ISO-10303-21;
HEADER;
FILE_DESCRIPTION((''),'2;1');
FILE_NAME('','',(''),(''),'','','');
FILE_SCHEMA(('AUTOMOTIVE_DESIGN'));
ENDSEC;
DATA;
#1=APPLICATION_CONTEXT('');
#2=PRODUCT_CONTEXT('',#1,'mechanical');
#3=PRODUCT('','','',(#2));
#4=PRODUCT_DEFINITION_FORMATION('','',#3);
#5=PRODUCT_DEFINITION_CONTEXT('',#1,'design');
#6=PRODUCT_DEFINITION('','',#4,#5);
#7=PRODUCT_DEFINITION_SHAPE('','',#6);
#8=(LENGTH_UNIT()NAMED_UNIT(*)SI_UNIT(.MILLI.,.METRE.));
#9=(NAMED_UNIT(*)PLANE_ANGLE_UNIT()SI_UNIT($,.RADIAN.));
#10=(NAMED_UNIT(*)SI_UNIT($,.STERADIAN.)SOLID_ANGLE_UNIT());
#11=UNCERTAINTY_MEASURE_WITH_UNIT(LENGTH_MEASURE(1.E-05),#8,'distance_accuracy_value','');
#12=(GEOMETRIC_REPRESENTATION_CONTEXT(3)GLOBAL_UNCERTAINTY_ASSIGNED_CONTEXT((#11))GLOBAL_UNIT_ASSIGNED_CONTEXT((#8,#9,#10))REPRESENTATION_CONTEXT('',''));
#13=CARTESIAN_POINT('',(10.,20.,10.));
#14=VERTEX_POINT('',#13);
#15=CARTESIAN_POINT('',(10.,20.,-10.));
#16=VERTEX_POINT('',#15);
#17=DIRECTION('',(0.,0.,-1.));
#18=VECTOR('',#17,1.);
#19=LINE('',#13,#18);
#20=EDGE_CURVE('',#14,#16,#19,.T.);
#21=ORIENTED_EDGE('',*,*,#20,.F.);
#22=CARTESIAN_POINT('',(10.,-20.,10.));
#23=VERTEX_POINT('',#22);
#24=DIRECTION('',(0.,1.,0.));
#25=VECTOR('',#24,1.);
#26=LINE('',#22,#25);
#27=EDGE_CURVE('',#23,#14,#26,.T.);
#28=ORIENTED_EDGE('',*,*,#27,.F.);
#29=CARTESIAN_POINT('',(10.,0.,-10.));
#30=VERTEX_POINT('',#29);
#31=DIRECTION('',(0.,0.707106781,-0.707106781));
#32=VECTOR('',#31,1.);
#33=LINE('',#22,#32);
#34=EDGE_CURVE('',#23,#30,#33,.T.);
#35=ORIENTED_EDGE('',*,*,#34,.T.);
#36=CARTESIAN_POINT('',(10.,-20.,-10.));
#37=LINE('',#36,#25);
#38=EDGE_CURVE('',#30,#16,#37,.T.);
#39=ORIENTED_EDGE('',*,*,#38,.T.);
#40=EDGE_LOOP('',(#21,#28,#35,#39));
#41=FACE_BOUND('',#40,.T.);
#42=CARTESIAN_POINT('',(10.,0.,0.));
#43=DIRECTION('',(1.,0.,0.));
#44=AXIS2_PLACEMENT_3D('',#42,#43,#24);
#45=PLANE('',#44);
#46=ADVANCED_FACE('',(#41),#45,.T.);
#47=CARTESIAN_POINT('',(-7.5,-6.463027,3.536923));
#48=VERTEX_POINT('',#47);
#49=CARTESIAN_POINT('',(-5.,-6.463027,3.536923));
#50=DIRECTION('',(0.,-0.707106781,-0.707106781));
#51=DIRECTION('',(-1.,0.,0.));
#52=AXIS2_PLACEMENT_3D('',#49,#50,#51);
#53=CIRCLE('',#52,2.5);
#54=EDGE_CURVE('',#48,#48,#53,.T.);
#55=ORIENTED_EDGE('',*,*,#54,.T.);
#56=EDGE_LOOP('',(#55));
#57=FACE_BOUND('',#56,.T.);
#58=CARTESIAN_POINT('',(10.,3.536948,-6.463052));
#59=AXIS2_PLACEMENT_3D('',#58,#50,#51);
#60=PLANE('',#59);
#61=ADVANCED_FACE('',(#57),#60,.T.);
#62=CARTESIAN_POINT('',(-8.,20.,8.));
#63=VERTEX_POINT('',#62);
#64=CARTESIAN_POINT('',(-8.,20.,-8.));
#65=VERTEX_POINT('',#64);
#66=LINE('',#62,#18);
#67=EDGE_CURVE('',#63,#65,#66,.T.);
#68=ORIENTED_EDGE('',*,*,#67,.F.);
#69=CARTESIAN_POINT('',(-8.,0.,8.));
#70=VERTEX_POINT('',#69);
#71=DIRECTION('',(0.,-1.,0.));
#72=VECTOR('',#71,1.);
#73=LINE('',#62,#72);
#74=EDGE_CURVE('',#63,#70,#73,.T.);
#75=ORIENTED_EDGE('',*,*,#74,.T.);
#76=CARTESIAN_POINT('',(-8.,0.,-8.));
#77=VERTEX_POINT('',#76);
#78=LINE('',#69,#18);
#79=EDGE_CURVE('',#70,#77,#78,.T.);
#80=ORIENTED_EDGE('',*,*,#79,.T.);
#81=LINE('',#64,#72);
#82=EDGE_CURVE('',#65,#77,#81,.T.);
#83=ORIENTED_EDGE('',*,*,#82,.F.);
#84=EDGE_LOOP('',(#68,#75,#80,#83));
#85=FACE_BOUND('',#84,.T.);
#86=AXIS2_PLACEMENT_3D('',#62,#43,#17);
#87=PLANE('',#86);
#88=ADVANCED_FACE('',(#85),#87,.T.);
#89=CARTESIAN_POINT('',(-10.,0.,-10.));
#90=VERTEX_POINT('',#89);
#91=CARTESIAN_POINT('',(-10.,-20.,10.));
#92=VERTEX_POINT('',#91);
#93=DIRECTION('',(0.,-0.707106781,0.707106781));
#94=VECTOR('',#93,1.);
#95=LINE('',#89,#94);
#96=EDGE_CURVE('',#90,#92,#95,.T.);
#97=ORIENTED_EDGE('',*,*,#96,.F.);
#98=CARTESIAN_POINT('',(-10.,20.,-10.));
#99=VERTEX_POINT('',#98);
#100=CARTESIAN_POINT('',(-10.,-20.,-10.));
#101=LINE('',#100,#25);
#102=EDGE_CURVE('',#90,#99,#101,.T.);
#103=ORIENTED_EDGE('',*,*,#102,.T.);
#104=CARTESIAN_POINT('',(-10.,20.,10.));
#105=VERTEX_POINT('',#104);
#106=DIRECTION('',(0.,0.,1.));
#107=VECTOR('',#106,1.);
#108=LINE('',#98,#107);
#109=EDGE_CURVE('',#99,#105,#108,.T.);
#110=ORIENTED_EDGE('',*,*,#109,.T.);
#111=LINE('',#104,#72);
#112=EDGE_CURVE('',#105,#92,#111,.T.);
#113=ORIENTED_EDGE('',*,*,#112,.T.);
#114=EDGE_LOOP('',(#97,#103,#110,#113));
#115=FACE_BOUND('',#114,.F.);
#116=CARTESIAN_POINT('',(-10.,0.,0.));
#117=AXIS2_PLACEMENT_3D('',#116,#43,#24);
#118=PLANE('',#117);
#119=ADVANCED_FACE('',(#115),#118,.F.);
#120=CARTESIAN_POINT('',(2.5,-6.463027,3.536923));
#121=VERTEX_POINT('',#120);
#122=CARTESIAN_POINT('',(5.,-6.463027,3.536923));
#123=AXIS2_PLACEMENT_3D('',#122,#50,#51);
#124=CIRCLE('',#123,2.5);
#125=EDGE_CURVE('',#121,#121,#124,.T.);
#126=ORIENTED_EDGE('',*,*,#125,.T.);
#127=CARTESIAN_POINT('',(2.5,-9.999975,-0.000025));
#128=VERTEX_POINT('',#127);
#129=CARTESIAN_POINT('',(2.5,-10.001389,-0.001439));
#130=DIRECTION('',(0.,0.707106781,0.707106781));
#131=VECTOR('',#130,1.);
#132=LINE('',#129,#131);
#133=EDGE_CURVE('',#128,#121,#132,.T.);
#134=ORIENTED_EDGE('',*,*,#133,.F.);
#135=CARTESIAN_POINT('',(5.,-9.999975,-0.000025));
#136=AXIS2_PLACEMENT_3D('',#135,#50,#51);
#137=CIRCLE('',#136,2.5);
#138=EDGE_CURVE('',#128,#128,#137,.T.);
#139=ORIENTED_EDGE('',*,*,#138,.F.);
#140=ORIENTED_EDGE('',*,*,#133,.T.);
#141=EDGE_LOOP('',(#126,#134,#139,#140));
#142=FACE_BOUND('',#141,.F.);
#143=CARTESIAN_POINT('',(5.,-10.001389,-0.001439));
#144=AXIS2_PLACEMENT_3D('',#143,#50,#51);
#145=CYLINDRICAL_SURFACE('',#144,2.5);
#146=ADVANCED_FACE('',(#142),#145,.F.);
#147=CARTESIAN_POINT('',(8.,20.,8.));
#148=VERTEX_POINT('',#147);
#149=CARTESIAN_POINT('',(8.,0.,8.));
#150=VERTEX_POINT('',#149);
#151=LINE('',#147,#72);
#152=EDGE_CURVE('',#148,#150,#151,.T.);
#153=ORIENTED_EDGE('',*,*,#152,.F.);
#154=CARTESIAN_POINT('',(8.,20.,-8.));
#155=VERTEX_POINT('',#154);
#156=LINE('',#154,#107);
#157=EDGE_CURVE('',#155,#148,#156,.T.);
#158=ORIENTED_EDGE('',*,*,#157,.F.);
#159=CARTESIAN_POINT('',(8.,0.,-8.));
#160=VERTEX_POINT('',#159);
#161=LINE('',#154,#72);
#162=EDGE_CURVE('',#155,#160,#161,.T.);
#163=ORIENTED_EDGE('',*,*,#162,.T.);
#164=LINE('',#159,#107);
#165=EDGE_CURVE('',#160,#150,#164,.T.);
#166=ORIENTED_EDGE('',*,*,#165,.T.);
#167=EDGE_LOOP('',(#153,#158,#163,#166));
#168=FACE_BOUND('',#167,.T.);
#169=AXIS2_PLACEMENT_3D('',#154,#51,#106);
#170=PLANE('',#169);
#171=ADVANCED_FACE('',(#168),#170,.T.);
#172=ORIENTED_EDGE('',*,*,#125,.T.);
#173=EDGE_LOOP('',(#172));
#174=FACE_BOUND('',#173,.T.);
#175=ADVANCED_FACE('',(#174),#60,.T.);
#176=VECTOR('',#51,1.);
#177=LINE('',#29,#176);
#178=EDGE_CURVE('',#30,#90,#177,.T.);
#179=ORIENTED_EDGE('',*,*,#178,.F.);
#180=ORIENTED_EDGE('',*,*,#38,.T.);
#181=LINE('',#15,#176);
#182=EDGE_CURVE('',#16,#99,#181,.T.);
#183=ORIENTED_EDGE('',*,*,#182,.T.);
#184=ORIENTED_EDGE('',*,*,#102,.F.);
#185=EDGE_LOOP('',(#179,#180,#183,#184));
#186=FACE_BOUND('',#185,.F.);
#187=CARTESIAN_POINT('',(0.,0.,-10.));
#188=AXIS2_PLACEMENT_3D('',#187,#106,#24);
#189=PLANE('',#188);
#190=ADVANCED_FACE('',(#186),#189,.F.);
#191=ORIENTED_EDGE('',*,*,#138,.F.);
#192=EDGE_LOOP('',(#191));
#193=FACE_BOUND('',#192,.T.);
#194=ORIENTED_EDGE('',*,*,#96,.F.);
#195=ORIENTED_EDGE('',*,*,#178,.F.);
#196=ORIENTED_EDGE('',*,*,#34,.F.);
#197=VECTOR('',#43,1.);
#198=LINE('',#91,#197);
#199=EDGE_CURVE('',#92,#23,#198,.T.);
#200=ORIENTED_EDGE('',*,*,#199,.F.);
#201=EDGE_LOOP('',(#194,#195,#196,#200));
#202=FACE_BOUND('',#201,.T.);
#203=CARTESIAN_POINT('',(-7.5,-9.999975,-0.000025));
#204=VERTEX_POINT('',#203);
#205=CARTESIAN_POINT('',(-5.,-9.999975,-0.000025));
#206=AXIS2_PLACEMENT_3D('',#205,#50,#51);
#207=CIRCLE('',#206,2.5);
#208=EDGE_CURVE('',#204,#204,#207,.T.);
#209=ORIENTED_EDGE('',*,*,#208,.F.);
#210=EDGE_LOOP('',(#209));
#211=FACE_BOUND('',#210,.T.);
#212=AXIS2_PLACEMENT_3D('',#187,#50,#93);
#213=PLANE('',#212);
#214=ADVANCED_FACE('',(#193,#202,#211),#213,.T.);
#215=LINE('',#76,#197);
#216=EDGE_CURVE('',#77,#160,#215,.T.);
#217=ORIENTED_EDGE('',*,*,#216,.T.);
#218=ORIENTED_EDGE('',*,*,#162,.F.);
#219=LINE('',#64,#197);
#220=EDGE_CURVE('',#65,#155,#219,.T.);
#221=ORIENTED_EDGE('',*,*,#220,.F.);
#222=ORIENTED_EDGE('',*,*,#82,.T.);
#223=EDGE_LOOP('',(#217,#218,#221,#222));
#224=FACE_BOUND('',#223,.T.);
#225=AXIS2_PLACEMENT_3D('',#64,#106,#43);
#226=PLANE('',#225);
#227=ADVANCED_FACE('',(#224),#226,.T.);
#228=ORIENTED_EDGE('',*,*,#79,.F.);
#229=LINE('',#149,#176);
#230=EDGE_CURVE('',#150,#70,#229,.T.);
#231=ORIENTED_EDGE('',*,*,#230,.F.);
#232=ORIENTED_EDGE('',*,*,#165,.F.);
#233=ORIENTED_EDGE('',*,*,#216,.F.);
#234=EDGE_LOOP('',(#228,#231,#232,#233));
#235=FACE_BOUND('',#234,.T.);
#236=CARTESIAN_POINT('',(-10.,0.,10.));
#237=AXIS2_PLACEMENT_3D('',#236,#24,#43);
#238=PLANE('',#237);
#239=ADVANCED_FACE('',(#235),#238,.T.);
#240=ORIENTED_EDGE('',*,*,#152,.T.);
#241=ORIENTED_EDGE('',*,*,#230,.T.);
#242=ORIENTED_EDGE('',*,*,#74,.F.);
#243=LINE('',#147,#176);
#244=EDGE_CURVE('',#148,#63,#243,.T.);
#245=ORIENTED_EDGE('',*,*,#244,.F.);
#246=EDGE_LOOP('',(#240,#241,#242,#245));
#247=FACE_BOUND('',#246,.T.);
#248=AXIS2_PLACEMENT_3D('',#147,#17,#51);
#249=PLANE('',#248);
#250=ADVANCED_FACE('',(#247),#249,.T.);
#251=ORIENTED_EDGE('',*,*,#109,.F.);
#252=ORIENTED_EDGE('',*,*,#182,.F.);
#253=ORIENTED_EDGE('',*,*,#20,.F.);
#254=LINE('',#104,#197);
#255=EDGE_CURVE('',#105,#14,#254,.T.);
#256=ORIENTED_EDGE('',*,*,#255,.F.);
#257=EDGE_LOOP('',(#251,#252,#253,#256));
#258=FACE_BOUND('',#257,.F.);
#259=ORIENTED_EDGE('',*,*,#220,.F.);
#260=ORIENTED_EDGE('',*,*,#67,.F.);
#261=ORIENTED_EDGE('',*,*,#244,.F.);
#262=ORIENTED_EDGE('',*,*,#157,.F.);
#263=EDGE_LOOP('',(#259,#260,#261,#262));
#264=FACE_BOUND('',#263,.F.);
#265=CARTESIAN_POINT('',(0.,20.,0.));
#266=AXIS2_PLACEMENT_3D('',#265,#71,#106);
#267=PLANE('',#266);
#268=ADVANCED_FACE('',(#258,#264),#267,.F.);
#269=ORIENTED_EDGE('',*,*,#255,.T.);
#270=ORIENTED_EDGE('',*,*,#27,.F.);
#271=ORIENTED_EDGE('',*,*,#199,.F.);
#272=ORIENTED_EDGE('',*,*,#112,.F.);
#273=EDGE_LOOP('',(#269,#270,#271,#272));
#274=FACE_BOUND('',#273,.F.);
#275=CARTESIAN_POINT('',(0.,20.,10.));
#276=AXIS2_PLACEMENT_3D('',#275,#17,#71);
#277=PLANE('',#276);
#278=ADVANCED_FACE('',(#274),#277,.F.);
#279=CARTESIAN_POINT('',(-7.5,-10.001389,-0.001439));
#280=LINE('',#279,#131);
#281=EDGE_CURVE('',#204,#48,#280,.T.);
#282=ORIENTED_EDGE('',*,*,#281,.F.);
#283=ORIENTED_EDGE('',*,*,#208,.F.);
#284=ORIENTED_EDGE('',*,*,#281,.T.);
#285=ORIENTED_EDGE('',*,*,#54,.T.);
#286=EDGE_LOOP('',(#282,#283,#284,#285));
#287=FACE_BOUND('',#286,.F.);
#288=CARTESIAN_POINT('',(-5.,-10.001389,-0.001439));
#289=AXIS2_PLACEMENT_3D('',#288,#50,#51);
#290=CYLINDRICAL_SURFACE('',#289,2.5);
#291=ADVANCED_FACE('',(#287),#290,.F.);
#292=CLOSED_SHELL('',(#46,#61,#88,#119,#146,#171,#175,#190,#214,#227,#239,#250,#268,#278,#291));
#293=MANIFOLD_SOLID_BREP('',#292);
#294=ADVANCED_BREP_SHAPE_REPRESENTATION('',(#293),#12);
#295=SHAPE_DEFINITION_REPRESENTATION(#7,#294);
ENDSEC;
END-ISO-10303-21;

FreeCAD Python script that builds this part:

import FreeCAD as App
import Part
import Sketcher
Q = App.Units.Quantity


def add_polygon(sketch, points):
    """Adds a closed chain of lines whose ends are joined by coincident constraints."""
    first, n = sketch.GeometryCount, len(points)
    for a, b in zip(points, points[1:] + points[:1]):
        sketch.addGeometry(Part.LineSegment(App.Vector(*a, 0), App.Vector(*b, 0)), False)
    for i in range(n):
        sketch.addConstraint(Sketcher.Constraint("Coincident", first + i, 2, first + (i + 1) % n, 1))

doc = App.newDocument("Part")
body = doc.addObject("PartDesign::Body", "Body")

# Sketch on YZ plane
sketch1 = body.newObject("Sketcher::SketchObject", "Sketch")
sketch1.AttachmentSupport = (doc.getObject("YZ_Plane"), [""])
sketch1.MapMode = "FlatFace"
add_polygon(sketch1, [(20, 10), (-20, 10), (0, -10), (20, -10)])  # lines 0-3
sketch1.addConstraint([
    Sketcher.Constraint("Horizontal", 0),
    Sketcher.Constraint("Horizontal", 2),
    Sketcher.Constraint("Vertical", 3),
    Sketcher.Constraint("Symmetric", 0, 2, 2, 2, -1, 1),
    Sketcher.Constraint("PointOnObject", 1, 2, -2),
    Sketcher.Constraint("Equal", 2, 3),
    Sketcher.Constraint("DistanceX", 0, 2, 0, 1, Q("40 mm")),
])
pad1 = body.newObject("PartDesign::Pad", "Pad")
pad1.Profile = sketch1
pad1.Length = 20
pad1.Midplane = True

# Sketch on XZ plane
sketch2 = body.newObject("Sketcher::SketchObject", "Sketch001")
sketch2.AttachmentSupport = (doc.getObject("XZ_Plane"), [""])
sketch2.MapMode = "FlatFace"
sketch2.AttachmentOffset = App.Placement(App.Vector(0, 0, -20), App.Rotation())
add_polygon(sketch2, [(8, -8), (-8, -8), (-8, 8), (8, 8)])  # lines 0-3
sketch2.addConstraint([
    Sketcher.Constraint("Horizontal", 0),
    Sketcher.Constraint("Vertical", 1),
    Sketcher.Constraint("Horizontal", 2),
    Sketcher.Constraint("Vertical", 3),
    Sketcher.Constraint("Symmetric", 0, 2, 2, 2, -1, 1),
    Sketcher.Constraint("Equal", 2, 1),
    Sketcher.Constraint("DistanceX", 0, 2, 0, 1, Q("16 mm")),
])
pocket1 = body.newObject("PartDesign::Pocket", "Pocket")
pocket1.Profile = sketch2
pocket1.Length = 20
pocket1.Reversed = True

# Sketch on an angled plane
sketch3 = body.newObject("Sketcher::SketchObject", "Sketch002")
sketch3.Placement = App.Placement(App.Vector(10, 0, -10), App.Rotation(App.Vector(-1, 0, 0), App.Vector(0, 0.707106781, -0.707106781), App.Vector(0, -0.707106781, -0.707106781), "ZXY"))
sketch3.addGeometry([
    Part.Circle(App.Vector(15, -14.1, 0), App.Vector(0, 0, 1), 2.5),
    Part.Circle(App.Vector(5, -14.1, 0), App.Vector(0, 0, 1), 2.5),
], False)
sketch3.addConstraint([
    Sketcher.Constraint("Equal", 0, 1),
    Sketcher.Constraint("Horizontal", 0, 3, 1, 3),
    Sketcher.Constraint("Diameter", 0, Q("5 mm")),
    Sketcher.Constraint("DistanceX", -1, 1, 1, 3, Q("5 mm")),
    Sketcher.Constraint("DistanceX", -1, 1, 0, 3, Q("15 mm")),
    Sketcher.Constraint("DistanceY", 0, 3, -1, 1, Q("14.142 mm")),
])
pocket2 = body.newObject("PartDesign::Pocket", "Pocket001")
pocket2.Profile = sketch3
pocket2.Length = 5

doc.recompute()
